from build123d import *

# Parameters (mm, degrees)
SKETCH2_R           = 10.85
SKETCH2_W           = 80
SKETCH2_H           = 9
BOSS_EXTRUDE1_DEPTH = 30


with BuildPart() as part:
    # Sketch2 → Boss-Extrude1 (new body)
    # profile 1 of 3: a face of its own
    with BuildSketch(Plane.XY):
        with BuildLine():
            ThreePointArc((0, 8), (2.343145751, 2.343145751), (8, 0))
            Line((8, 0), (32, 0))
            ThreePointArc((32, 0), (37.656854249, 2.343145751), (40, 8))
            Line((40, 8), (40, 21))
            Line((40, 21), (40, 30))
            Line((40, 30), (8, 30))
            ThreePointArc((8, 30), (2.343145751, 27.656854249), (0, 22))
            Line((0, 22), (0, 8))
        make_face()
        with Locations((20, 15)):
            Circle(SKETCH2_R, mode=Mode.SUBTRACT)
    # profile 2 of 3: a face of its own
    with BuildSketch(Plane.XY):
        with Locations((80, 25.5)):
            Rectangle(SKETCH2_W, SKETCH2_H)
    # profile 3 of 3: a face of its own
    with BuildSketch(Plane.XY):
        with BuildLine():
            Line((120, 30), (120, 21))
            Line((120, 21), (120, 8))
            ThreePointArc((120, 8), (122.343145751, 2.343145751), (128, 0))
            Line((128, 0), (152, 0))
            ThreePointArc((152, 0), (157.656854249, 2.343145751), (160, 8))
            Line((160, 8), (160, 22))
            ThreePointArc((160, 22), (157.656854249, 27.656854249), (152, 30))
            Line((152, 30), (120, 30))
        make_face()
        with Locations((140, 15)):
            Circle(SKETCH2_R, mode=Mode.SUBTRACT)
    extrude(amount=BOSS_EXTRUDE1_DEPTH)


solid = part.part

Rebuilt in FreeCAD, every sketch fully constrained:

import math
import FreeCAD as App
import Part
import Sketcher
Q = App.Units.Quantity

doc = App.newDocument("Part")
body = doc.addObject("PartDesign::Body", "Body")

sketch1 = body.newObject("Sketcher::SketchObject", "Sketch")
sketch1.AttachmentSupport = (doc.getObject("XY_Plane"), [""])
sketch1.MapMode = "FlatFace"
sketch1.addGeometry([
    Part.ArcOfCircle(Part.Circle(App.Vector(8, 8, 0), App.Vector(0, 0, 1), 8), math.radians(-180), math.radians(-90)),
    Part.LineSegment(App.Vector(8, 0, 0), App.Vector(32, 0, 0)),
    Part.ArcOfCircle(Part.Circle(App.Vector(32, 8, 0), App.Vector(0, 0, 1), 8), math.radians(-90), math.radians(0)),
    Part.LineSegment(App.Vector(40, 8, 0), App.Vector(40, 21, 0)),
    Part.LineSegment(App.Vector(40, 21, 0), App.Vector(120, 21, 0)),
    Part.LineSegment(App.Vector(120, 21, 0), App.Vector(120, 8, 0)),
    Part.ArcOfCircle(Part.Circle(App.Vector(128, 8, 0), App.Vector(0, 0, 1), 8), math.radians(-180), math.radians(-90)),
    Part.LineSegment(App.Vector(128, 0, 0), App.Vector(152, 0, 0)),
    Part.ArcOfCircle(Part.Circle(App.Vector(152, 8, 0), App.Vector(0, 0, 1), 8), math.radians(-90), math.radians(0)),
    Part.LineSegment(App.Vector(160, 8, 0), App.Vector(160, 22, 0)),
    Part.ArcOfCircle(Part.Circle(App.Vector(152, 22, 0), App.Vector(0, 0, 1), 8), math.radians(0), math.radians(90)),
    Part.LineSegment(App.Vector(152, 30, 0), App.Vector(8, 30, 0)),
    Part.ArcOfCircle(Part.Circle(App.Vector(8, 22, 0), App.Vector(0, 0, 1), 8), math.radians(90), math.radians(180)),
    Part.LineSegment(App.Vector(0, 22, 0), App.Vector(0, 8, 0)),
    Part.Circle(App.Vector(20, 15, 0), App.Vector(0, 0, 1), 11),
    Part.Circle(App.Vector(140, 15, 0), App.Vector(0, 0, 1), 11),
], False)
sketch1.addConstraint([
    Sketcher.Constraint("Tangent", 0, 2, 1, 1),
    Sketcher.Constraint("Tangent", 1, 2, 2, 1),
    Sketcher.Constraint("Tangent", 2, 2, 3, 1),
    Sketcher.Constraint("Coincident", 3, 2, 4, 1),
    Sketcher.Constraint("Coincident", 4, 2, 5, 1),
    Sketcher.Constraint("Tangent", 5, 2, 6, 1),
    Sketcher.Constraint("Tangent", 6, 2, 7, 1),
    Sketcher.Constraint("Tangent", 7, 2, 8, 1),
    Sketcher.Constraint("Tangent", 8, 2, 9, 1),
    Sketcher.Constraint("Tangent", 9, 2, 10, 1),
    Sketcher.Constraint("Tangent", 10, 2, 11, 1),
    Sketcher.Constraint("Tangent", 11, 2, 12, 1),
    Sketcher.Constraint("Tangent", 12, 2, 13, 1),
    Sketcher.Constraint("Tangent", 13, 2, 0, 1),
    Sketcher.Constraint("Horizontal", 1),
    Sketcher.Constraint("Vertical", 3),
    Sketcher.Constraint("Horizontal", 4),
    Sketcher.Constraint("Vertical", 5),
    Sketcher.Constraint("Horizontal", 7),
    Sketcher.Constraint("Vertical", 9),
    Sketcher.Constraint("Horizontal", 11),
    Sketcher.Constraint("Vertical", 13),
    Sketcher.Constraint("Equal", 0, 2),
    Sketcher.Constraint("Equal", 2, 6),
    Sketcher.Constraint("Equal", 6, 8),
    Sketcher.Constraint("Equal", 8, 10),
    Sketcher.Constraint("Equal", 10, 12),
    Sketcher.Constraint("Equal", 14, 15),
    Sketcher.Constraint("PointOnObject", 0, 2, -1),
    Sketcher.Constraint("PointOnObject", 6, 2, -1),
    Sketcher.Constraint("PointOnObject", 12, 2, -2),
    Sketcher.Constraint("Horizontal", 14, 3, 15, 3),
    Sketcher.Constraint("Equal", 1, 7),
    Sketcher.Constraint("Radius", 0, Q("8 mm")),
    Sketcher.Constraint("Diameter", 14, Q("21.7 mm")),
    Sketcher.Constraint("DistanceX", 1, 1, 1, 2, Q("24 mm")),
    Sketcher.Constraint("DistanceX", 4, 1, 4, 2, Q("80 mm")),
    Sketcher.Constraint("DistanceY", 3, 1, 3, 2, Q("13 mm")),
    Sketcher.Constraint("DistanceY", 9, 1, 9, 2, Q("14 mm")),
    Sketcher.Constraint("DistanceX", -1, 1, 14, 3, Q("20 mm")),
    Sketcher.Constraint("DistanceY", -1, 1, 14, 3, Q("15 mm")),
    Sketcher.Constraint("DistanceX", -1, 1, 15, 3, Q("140 mm")),
])
pad1 = body.newObject("PartDesign::Pad", "Pad")
pad1.Profile = sketch1
pad1.Length = 30

doc.recompute()
